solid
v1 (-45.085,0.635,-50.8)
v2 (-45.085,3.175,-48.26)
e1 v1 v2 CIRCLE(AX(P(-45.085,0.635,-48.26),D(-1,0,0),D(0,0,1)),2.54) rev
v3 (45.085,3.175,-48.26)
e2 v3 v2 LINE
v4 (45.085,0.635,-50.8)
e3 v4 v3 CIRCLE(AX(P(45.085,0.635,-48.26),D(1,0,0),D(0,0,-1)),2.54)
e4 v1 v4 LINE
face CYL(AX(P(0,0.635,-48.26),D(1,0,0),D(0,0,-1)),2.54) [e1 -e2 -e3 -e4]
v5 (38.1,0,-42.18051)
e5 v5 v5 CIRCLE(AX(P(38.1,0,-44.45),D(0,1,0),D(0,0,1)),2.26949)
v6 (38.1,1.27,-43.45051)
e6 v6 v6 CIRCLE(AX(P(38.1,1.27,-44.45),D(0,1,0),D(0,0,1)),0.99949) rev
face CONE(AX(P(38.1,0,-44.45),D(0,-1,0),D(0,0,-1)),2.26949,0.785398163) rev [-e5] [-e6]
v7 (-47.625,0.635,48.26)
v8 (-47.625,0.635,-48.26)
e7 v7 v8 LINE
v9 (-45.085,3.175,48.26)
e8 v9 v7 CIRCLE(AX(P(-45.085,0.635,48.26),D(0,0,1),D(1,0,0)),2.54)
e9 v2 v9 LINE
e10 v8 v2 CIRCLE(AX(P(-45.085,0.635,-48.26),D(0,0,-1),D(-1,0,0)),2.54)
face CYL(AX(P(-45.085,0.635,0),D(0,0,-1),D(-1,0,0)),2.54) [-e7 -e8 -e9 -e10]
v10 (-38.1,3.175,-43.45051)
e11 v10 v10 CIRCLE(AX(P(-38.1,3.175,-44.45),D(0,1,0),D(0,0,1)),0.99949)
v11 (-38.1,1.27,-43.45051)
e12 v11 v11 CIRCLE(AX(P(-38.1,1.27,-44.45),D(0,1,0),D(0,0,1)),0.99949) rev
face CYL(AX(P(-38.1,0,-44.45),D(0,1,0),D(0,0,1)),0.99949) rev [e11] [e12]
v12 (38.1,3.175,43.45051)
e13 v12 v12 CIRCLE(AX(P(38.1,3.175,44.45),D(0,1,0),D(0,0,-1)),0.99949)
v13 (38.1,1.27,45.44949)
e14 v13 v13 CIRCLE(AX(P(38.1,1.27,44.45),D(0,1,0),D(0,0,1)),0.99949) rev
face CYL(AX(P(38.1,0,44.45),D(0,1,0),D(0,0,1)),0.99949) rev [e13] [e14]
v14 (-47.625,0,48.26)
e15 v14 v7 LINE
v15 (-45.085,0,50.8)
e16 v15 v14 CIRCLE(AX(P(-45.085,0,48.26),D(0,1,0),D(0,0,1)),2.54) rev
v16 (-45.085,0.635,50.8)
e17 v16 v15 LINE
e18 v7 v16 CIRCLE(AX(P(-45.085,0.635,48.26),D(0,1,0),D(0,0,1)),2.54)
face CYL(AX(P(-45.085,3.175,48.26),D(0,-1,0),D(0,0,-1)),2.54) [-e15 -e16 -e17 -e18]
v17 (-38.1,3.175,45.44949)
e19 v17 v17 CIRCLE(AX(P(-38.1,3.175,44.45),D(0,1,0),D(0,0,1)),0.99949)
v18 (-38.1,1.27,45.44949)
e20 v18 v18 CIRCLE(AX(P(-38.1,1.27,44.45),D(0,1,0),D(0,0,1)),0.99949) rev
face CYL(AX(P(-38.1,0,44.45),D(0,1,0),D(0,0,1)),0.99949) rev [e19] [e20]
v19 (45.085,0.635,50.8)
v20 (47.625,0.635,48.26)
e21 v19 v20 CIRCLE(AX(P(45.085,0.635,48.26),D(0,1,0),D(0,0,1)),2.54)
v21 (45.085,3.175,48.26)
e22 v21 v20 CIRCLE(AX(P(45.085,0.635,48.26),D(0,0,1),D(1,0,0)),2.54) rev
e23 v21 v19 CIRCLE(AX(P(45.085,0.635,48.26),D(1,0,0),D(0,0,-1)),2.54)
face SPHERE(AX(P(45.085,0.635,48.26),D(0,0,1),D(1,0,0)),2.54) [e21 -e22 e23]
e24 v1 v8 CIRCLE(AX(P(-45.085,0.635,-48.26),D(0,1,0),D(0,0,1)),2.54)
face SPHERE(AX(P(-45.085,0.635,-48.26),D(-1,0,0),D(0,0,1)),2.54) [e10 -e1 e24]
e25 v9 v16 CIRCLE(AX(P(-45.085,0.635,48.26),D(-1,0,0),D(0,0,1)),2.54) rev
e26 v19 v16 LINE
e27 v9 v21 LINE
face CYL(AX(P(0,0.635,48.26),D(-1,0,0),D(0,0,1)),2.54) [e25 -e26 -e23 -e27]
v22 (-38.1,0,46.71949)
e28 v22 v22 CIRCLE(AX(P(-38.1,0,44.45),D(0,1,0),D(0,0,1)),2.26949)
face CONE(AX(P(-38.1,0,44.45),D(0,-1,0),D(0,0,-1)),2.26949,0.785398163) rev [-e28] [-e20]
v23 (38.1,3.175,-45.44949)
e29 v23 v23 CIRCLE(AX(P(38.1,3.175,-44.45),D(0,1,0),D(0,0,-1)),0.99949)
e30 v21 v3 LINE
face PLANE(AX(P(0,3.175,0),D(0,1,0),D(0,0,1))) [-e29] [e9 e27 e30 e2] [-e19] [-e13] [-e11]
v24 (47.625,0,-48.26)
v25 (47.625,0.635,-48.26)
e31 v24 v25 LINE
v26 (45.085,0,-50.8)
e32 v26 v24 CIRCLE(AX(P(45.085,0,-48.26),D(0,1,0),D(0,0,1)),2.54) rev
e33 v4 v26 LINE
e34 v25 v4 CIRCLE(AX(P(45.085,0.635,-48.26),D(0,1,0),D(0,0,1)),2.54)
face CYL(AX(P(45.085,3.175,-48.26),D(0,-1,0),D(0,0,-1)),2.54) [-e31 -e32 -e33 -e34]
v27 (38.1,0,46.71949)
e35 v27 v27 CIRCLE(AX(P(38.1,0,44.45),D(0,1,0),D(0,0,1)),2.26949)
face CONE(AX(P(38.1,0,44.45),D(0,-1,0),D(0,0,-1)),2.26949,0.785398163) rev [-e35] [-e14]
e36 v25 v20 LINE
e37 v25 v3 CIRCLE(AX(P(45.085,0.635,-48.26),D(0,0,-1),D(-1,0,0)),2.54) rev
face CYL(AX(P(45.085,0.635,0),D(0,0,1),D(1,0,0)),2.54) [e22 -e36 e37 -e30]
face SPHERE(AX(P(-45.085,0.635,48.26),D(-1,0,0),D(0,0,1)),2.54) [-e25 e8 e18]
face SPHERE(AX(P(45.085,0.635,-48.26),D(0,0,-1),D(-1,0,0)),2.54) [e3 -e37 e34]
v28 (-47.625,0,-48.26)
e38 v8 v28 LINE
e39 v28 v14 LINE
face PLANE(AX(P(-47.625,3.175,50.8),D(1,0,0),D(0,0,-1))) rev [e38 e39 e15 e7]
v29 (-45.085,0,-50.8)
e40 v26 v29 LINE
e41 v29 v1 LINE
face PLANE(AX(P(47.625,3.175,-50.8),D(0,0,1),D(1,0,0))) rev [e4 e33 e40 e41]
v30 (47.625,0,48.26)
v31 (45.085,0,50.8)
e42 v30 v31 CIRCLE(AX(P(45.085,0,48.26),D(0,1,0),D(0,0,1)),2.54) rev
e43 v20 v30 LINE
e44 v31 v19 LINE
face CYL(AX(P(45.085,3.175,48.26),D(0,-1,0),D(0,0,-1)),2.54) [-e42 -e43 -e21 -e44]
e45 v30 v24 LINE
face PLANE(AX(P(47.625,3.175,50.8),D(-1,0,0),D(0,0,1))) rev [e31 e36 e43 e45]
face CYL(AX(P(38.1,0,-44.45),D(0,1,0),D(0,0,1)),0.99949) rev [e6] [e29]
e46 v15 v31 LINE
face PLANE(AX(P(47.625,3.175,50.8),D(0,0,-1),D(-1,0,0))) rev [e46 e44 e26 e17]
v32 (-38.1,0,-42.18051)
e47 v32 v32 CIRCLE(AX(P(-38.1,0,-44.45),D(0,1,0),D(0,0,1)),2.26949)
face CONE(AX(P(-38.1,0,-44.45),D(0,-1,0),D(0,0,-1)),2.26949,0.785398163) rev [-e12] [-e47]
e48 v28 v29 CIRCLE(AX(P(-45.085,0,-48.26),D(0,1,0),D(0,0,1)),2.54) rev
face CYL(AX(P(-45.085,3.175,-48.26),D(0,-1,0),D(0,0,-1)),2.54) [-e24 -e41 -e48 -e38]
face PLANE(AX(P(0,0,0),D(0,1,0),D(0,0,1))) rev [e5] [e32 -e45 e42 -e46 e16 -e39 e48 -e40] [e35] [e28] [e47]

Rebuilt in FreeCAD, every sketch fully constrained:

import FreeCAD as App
import Part
import Sketcher
Q = App.Units.Quantity


def edges_at(feature, points):
    """Names of the edges that pass closest to the given points."""
    edges = feature.Shape.Edges
    near = lambda p: min(range(len(edges)), key=lambda i: edges[i].distToShape(Part.Vertex(*p))[0])
    return sorted({f"Edge{near(p) + 1}" for p in points})


def add_polygon(sketch, points):
    """Adds a closed chain of lines whose ends are joined by coincident constraints."""
    first, n = sketch.GeometryCount, len(points)
    for a, b in zip(points, points[1:] + points[:1]):
        sketch.addGeometry(Part.LineSegment(App.Vector(*a, 0), App.Vector(*b, 0)), False)
    for i in range(n):
        sketch.addConstraint(Sketcher.Constraint("Coincident", first + i, 2, first + (i + 1) % n, 1))

doc = App.newDocument("Part")
body = doc.addObject("PartDesign::Body", "Body")

sketch1 = body.newObject("Sketcher::SketchObject", "Sketch")
sketch1.AttachmentSupport = (doc.getObject("XZ_Plane"), [""])
sketch1.MapMode = "FlatFace"
add_polygon(sketch1, [(-47.625, -50.8), (-47.625, 50.8), (47.625, 50.8), (47.625, -50.8)])
sketch1.addConstraint([
    Sketcher.Constraint("Vertical", 0),
    Sketcher.Constraint("Horizontal", 1),
    Sketcher.Constraint("Vertical", 2),
    Sketcher.Constraint("Horizontal", 3),
    Sketcher.Constraint("Symmetric", 0, 2, 2, 2, -1, 1),
    Sketcher.Constraint("DistanceY", 0, 1, 0, 2, Q("4 in")),
    Sketcher.Constraint("DistanceX", 1, 1, 1, 2, Q("3.75 in")),
])
pad1 = body.newObject("PartDesign::Pad", "Pad")
pad1.Profile = sketch1
pad1.Length = Q("0.125 in")
pad1.Reversed = True

sketch2 = body.newObject("Sketcher::SketchObject", "Sketch001")
sketch2.AttachmentSupport = (doc.getObject("XZ_Plane"), [""])
sketch2.MapMode = "FlatFace"
sketch2.AttachmentOffset = App.Placement(App.Vector(0, 0, -0.125 * 25.4), App.Rotation())
sketch2.addGeometry([
    Part.Circle(App.Vector(-38.1, 44.45, 0), App.Vector(0, 0, 1), 0.99949),
    Part.Circle(App.Vector(38.1, 44.45, 0), App.Vector(0, 0, 1), 0.99949),
], False)
sketch2.addConstraint([
    Sketcher.Constraint("Equal", 0, 1),
    Sketcher.Constraint("Symmetric", 0, 3, 1, 3, -2),
    Sketcher.Constraint("DistanceX", 0, 3, 1, 3, Q("3 in")),
    Sketcher.Constraint("Diameter", 0, Q("0.0787 in")),
    Sketcher.Constraint("DistanceY", -1, 1, 0, 3, Q("1.75 in")),
])
pocket1 = body.newObject("PartDesign::Pocket", "Pocket")
pocket1.Profile = sketch2
pocket1.Length = Q("0.125 in")
pocket1.Reversed = True
doc.recompute()

polarpattern = body.newObject("PartDesign::PolarPattern", "PolarPattern")
polarpattern.Originals = [pocket1]
polarpattern.Axis = (doc.getObject("Y_Axis"), [""])
polarpattern.Angle = 360
polarpattern.Occurrences = 2
body.Tip = polarpattern
doc.recompute()

fillet = body.newObject("PartDesign::Fillet", "Fillet")
fillet.Base = (polarpattern, edges_at(polarpattern, [
    (47.625, 3.175, 0),
    (0, 3.175, -50.8),
    (-47.625, 3.175, 0),
    (-47.625, 1.587, -50.8),
    (47.625, 1.587, -50.8),
    (47.625, 1.587, 50.8),
    (-47.625, 1.587, 50.8),
    (0, 3.175, 50.8),
]))
fillet.Radius = Q("0.1 in")
doc.recompute()

chamfer = body.newObject("PartDesign::Chamfer", "Chamfer")
chamfer.Base = (fillet, edges_at(fillet, [
    (-39.099, 0, 44.45),
    (37.101, 0, 44.45),
    (39.099, 0, -44.45),
    (-37.101, 0, -44.45),
]))
chamfer.Size = Q("0.05 in")

doc.recompute()
